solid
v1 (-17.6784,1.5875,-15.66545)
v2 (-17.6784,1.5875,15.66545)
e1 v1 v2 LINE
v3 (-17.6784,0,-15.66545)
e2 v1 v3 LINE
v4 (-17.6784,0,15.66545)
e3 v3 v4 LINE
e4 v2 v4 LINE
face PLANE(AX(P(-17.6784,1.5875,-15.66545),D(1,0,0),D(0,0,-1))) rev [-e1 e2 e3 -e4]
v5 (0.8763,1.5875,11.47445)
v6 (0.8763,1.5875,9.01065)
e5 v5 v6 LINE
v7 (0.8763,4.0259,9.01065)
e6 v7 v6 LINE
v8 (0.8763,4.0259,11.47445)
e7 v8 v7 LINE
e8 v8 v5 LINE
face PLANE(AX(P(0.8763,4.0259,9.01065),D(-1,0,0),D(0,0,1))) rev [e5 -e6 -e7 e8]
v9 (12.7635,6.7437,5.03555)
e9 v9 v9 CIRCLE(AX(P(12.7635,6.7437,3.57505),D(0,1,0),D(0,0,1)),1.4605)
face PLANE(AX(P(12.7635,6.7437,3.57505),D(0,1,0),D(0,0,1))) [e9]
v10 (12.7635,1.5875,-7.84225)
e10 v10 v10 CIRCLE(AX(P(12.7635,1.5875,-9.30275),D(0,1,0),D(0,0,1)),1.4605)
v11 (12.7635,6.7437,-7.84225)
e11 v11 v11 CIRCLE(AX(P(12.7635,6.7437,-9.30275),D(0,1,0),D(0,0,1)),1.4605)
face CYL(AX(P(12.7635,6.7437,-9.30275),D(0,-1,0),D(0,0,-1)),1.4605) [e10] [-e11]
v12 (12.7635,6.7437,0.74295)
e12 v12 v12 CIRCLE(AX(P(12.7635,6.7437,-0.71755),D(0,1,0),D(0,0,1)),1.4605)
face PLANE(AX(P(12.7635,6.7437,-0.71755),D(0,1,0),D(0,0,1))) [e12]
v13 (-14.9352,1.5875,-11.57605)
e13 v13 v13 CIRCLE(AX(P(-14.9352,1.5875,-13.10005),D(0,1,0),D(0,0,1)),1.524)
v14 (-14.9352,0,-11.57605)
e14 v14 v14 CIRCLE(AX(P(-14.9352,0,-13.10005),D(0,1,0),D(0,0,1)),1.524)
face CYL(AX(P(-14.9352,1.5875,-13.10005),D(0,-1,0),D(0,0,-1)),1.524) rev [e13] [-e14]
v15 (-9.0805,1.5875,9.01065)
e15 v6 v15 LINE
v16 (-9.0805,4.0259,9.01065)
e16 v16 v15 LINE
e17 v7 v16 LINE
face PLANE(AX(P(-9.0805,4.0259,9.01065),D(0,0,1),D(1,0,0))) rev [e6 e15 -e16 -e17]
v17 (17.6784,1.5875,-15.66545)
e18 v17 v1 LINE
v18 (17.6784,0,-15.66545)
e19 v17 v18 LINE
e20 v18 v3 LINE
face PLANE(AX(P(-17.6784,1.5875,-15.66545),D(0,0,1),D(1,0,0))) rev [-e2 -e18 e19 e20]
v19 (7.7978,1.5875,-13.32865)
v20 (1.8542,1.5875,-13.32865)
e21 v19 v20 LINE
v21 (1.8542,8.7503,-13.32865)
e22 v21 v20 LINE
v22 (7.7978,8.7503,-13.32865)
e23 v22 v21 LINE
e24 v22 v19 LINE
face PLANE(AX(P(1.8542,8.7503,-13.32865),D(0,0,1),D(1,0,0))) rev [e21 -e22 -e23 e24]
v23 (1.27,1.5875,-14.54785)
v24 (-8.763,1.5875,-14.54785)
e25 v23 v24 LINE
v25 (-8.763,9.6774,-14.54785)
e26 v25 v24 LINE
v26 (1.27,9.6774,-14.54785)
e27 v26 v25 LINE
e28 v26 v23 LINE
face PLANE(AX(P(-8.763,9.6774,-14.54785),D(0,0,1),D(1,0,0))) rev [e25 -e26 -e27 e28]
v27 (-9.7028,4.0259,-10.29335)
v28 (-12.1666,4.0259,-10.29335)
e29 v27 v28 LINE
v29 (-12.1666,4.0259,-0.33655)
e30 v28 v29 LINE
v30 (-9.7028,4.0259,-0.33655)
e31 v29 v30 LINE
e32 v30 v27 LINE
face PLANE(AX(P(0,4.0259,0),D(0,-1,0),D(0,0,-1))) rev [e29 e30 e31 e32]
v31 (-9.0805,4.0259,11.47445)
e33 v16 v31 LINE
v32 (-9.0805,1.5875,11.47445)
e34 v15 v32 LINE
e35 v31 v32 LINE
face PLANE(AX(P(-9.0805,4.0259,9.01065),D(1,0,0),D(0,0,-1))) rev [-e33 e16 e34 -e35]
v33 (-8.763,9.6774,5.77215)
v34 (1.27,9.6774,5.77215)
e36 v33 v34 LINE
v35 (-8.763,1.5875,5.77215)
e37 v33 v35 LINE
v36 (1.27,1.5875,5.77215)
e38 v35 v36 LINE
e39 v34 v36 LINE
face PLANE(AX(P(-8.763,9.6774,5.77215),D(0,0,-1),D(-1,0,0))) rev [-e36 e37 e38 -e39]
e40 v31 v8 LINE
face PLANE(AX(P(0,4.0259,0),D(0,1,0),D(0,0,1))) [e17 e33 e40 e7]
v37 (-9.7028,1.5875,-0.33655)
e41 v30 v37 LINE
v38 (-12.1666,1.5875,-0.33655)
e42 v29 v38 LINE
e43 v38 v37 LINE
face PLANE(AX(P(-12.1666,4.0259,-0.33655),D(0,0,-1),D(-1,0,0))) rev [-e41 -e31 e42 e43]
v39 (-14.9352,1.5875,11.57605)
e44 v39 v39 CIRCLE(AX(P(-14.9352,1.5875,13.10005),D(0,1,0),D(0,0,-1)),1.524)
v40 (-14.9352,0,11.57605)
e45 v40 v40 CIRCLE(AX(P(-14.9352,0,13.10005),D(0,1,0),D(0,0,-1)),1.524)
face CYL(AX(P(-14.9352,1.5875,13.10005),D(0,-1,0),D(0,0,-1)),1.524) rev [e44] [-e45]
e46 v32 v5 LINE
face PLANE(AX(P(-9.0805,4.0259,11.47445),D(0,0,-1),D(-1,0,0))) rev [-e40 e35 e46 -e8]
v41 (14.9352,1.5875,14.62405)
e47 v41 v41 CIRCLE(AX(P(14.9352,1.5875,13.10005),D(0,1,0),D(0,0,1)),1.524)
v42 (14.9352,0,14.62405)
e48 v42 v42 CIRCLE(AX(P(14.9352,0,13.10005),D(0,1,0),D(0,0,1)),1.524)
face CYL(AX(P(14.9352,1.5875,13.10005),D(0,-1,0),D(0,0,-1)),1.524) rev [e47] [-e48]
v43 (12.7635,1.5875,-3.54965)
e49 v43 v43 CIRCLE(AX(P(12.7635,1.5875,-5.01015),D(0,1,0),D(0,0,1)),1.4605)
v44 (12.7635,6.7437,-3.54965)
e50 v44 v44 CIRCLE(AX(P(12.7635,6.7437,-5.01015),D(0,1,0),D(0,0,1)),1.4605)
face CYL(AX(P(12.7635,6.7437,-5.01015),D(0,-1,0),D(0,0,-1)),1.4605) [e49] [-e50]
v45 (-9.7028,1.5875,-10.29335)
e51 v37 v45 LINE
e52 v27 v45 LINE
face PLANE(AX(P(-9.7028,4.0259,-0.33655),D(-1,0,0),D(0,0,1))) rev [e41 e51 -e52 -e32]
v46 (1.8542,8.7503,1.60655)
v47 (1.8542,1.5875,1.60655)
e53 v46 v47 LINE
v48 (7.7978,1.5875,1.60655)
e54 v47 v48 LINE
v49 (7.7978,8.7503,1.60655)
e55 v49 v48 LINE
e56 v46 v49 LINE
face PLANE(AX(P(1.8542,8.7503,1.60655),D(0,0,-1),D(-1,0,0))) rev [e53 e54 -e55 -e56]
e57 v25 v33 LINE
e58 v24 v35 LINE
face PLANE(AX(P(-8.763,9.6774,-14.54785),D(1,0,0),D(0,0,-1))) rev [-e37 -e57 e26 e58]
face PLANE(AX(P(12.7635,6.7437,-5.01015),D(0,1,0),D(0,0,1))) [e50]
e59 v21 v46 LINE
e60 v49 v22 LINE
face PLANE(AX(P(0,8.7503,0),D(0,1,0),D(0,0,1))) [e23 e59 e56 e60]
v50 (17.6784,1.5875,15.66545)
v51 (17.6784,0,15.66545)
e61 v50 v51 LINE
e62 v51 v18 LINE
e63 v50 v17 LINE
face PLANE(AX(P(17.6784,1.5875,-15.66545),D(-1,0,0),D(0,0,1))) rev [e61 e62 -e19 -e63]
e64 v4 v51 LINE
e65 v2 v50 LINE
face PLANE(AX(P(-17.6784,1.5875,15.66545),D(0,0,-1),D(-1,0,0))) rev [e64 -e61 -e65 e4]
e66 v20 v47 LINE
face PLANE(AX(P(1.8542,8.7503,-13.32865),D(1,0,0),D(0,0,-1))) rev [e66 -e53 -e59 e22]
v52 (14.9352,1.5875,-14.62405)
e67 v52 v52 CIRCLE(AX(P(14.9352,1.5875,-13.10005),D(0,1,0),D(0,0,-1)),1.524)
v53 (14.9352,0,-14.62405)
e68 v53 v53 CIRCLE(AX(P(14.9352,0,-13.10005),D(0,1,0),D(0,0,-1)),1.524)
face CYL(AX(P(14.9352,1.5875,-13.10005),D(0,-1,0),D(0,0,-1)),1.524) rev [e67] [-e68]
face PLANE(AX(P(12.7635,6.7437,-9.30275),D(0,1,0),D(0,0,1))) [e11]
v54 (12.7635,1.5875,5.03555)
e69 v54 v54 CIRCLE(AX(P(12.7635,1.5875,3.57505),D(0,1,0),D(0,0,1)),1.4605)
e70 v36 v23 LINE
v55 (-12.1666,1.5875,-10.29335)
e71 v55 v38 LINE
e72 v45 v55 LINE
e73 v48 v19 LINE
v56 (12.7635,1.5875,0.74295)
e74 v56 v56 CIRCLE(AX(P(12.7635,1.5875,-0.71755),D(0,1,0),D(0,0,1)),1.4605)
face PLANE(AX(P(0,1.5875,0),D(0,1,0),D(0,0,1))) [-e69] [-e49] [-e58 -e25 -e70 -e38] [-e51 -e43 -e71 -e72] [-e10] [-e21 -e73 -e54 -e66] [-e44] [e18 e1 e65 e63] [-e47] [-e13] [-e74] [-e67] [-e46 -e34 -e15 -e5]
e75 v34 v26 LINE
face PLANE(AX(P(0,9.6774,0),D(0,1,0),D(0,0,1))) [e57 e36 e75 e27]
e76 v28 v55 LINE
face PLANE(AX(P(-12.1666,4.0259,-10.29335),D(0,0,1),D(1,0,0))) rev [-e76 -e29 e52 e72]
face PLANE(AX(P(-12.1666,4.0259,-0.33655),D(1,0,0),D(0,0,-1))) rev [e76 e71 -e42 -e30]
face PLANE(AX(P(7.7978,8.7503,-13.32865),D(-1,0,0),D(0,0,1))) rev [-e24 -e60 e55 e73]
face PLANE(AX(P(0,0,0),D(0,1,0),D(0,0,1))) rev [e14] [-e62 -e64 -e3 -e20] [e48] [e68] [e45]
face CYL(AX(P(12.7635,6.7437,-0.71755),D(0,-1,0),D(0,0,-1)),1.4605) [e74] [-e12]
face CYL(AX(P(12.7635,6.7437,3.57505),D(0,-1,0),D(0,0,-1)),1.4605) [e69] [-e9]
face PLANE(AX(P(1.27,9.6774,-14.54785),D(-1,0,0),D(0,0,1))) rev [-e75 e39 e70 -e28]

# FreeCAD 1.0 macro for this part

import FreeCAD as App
import Part
import Sketcher
from FreeCAD import Vector
Q = App.Units.Quantity

doc = App.newDocument("Part")
body = doc.addObject("PartDesign::Body", "Body")

sketch1 = doc.addObject("Sketcher::SketchObject", "Sketch")
body.addObject(sketch1)
sketch1.AttachmentSupport = (doc.XZ_Plane, [""])
sketch1.MapMode = "FlatFace"
sketch1.addGeometry([
    Part.LineSegment(Vector(-17.7, -15.7, 0), Vector(-17.7, 15.7, 0)),
    Part.LineSegment(Vector(-17.7, 15.7, 0), Vector(17.7, 15.7, 0)),
    Part.LineSegment(Vector(17.7, 15.7, 0), Vector(17.7, -15.7, 0)),
    Part.LineSegment(Vector(17.7, -15.7, 0), Vector(-17.7, -15.7, 0)),
    Part.Circle(Vector(-14.9, 13.1, 0), Vector(0, 0, 1), 1.5),
    Part.Circle(Vector(14.9, 13.1, 0), Vector(0, 0, 1), 1.5),
    Part.Circle(Vector(-14.9, -13.1, 0), Vector(0, 0, 1), 1.5),
    Part.Circle(Vector(14.9, -13.1, 0), Vector(0, 0, 1), 1.5),
], False)
sketch1.addConstraint([
    Sketcher.Constraint("Coincident", 0, 2, 1, 1),
    Sketcher.Constraint("Coincident", 1, 2, 2, 1),
    Sketcher.Constraint("Coincident", 2, 2, 3, 1),
    Sketcher.Constraint("Coincident", 3, 2, 0, 1),
    Sketcher.Constraint("Vertical", 0),
    Sketcher.Constraint("Horizontal", 1),
    Sketcher.Constraint("Vertical", 2),
    Sketcher.Constraint("Horizontal", 3),
    Sketcher.Constraint("Equal", 4, 5),
    Sketcher.Constraint("Equal", 5, 6),
    Sketcher.Constraint("Equal", 6, 7),
    Sketcher.Constraint("Symmetric", 5, 3, 6, 3, -1, 1),
    Sketcher.Constraint("Symmetric", 4, 3, 7, 3, -1, 1),
    Sketcher.Constraint("Symmetric", 0, 2, 2, 2, -1, 1),
    Sketcher.Constraint("Symmetric", 4, 3, 5, 3, -2),
    Sketcher.Constraint("Diameter", 4, Q("0.12 in")),
    Sketcher.Constraint("DistanceX", 1, 1, 1, 2, Q("1.392 in")),
    Sketcher.Constraint("DistanceY", 0, 1, 0, 2, Q("1.2335 in")),
    Sketcher.Constraint("DistanceX", 4, 3, -1, 1, Q("0.588 in")),
    Sketcher.Constraint("DistanceY", 4, 3, 0, 2, Q("0.101 in")),
])
pad1 = doc.addObject("PartDesign::Pad", "Pad")
body.addObject(pad1)
pad1.Profile = sketch1
pad1.Length = Q("0.0625 in")
pad1.Reversed = True

sketch2 = doc.addObject("Sketcher::SketchObject", "Sketch001")
body.addObject(sketch2)
sketch2.AttachmentSupport = (doc.XZ_Plane, [""])
sketch2.MapMode = "FlatFace"
sketch2.AttachmentOffset = App.Placement(Vector(0, 0, -0.0625 * 25.4), App.Rotation())
sketch2.addGeometry([
    Part.LineSegment(Vector(-12.2, -10.3, 0), Vector(-12.2, -0.3, 0)),
    Part.LineSegment(Vector(-12.2, -0.3, 0), Vector(-9.7, -0.3, 0)),
    Part.LineSegment(Vector(-9.7, -0.3, 0), Vector(-9.7, -10.3, 0)),
    Part.LineSegment(Vector(-9.7, -10.3, 0), Vector(-12.2, -10.3, 0)),
    Part.LineSegment(Vector(-9.1, 9, 0), Vector(-9.1, 11.5, 0)),
    Part.LineSegment(Vector(-9.1, 11.5, 0), Vector(0.9, 11.5, 0)),
    Part.LineSegment(Vector(0.9, 11.5, 0), Vector(0.9, 9, 0)),
    Part.LineSegment(Vector(0.9, 9, 0), Vector(-9.1, 9, 0)),
], False)
sketch2.addConstraint([
    Sketcher.Constraint("Coincident", 0, 2, 1, 1),
    Sketcher.Constraint("Coincident", 1, 2, 2, 1),
    Sketcher.Constraint("Coincident", 2, 2, 3, 1),
    Sketcher.Constraint("Coincident", 3, 2, 0, 1),
    Sketcher.Constraint("Coincident", 4, 2, 5, 1),
    Sketcher.Constraint("Coincident", 5, 2, 6, 1),
    Sketcher.Constraint("Coincident", 6, 2, 7, 1),
    Sketcher.Constraint("Coincident", 7, 2, 4, 1),
    Sketcher.Constraint("Vertical", 0),
    Sketcher.Constraint("Horizontal", 1),
    Sketcher.Constraint("Vertical", 2),
    Sketcher.Constraint("Horizontal", 3),
    Sketcher.Constraint("Vertical", 4),
    Sketcher.Constraint("Horizontal", 5),
    Sketcher.Constraint("Vertical", 6),
    Sketcher.Constraint("Horizontal", 7),
    Sketcher.Constraint("Equal", 7, 0),
    Sketcher.Constraint("Equal", 3, 4),
    Sketcher.Constraint("DistanceX", 1, 1, 1, 2, Q("0.097 in")),
    Sketcher.Constraint("DistanceX", 5, 1, 5, 2, Q("0.392 in")),
    Sketcher.Constraint("DistanceY", 2, 2, 6, 2, Q("0.76 in")),
    Sketcher.Constraint("DistanceX", 0, 2, -1, 1, Q("0.479 in")),
    Sketcher.Constraint("DistanceX", 4, 2, -1, 1, Q("0.3575 in")),
    Sketcher.Constraint("DistanceY", 0, 2, -1, 1, Q("0.33655 mm")),
])
pad2 = doc.addObject("PartDesign::Pad", "Pad001")
body.addObject(pad2)
pad2.Profile = sketch2
pad2.Length = Q("0.096 in")
pad2.Reversed = True

sketch3 = doc.addObject("Sketcher::SketchObject", "Sketch002")
body.addObject(sketch3)
sketch3.AttachmentSupport = (doc.XZ_Plane, [""])
sketch3.MapMode = "FlatFace"
sketch3.AttachmentOffset = App.Placement(Vector(0, 0, -0.0625 * 25.4), App.Rotation())
sketch3.addGeometry([
    Part.LineSegment(Vector(-9, -15, 0), Vector(-9, 6, 0)),
    Part.LineSegment(Vector(-9, 6, 0), Vector(1, 6, 0)),
    Part.LineSegment(Vector(1, 6, 0), Vector(1, -15, 0)),
    Part.LineSegment(Vector(1, -15, 0), Vector(-9, -15, 0)),
], False)
sketch3.addConstraint([
    Sketcher.Constraint("Coincident", 0, 2, 1, 1),
    Sketcher.Constraint("Coincident", 1, 2, 2, 1),
    Sketcher.Constraint("Coincident", 2, 2, 3, 1),
    Sketcher.Constraint("Coincident", 3, 2, 0, 1),
    Sketcher.Constraint("Vertical", 0),
    Sketcher.Constraint("Horizontal", 1),
    Sketcher.Constraint("Vertical", 2),
    Sketcher.Constraint("Horizontal", 3),
    Sketcher.Constraint("DistanceY", 0, 1, 0, 2, Q("0.8 in")),
    Sketcher.Constraint("DistanceX", 1, 1, 1, 2, Q("0.395 in")),
    Sketcher.Constraint("DistanceX", -1, 1, 1, 2, Q("0.05 in")),
    Sketcher.Constraint("DistanceY", -1, 1, 0, 2, Q("5.77215 mm")),
])
pad3 = doc.addObject("PartDesign::Pad", "Pad002")
body.addObject(pad3)
pad3.Profile = sketch3
pad3.Length = Q("0.3185 in")
pad3.Reversed = True

sketch4 = doc.addObject("Sketcher::SketchObject", "Sketch003")
body.addObject(sketch4)
sketch4.AttachmentSupport = (doc.XZ_Plane, [""])
sketch4.MapMode = "FlatFace"
sketch4.AttachmentOffset = App.Placement(Vector(0, 0, -0.0625 * 25.4), App.Rotation())
sketch4.addGeometry([
    Part.LineSegment(Vector(2, -13, 0), Vector(2, 2, 0)),
    Part.LineSegment(Vector(2, 2, 0), Vector(8, 2, 0)),
    Part.LineSegment(Vector(8, 2, 0), Vector(8, -13, 0)),
    Part.LineSegment(Vector(8, -13, 0), Vector(2, -13, 0)),
], False)
sketch4.addConstraint([
    Sketcher.Constraint("Coincident", 0, 2, 1, 1),
    Sketcher.Constraint("Coincident", 1, 2, 2, 1),
    Sketcher.Constraint("Coincident", 2, 2, 3, 1),
    Sketcher.Constraint("Coincident", 3, 2, 0, 1),
    Sketcher.Constraint("Vertical", 0),
    Sketcher.Constraint("Horizontal", 1),
    Sketcher.Constraint("Vertical", 2),
    Sketcher.Constraint("Horizontal", 3),
    Sketcher.Constraint("DistanceX", 1, 1, 1, 2, Q("0.234 in")),
    Sketcher.Constraint("DistanceY", 0, 1, 0, 2, Q("0.588 in")),
    Sketcher.Constraint("DistanceX", -1, 1, 0, 2, Q("0.073 in")),
    Sketcher.Constraint("DistanceY", -1, 1, 0, 2, Q("1.60655 mm")),
])
pad4 = doc.addObject("PartDesign::Pad", "Pad003")
body.addObject(pad4)
pad4.Profile = sketch4
pad4.Length = Q("0.282 in")
pad4.Reversed = True

sketch5 = doc.addObject("Sketcher::SketchObject", "Sketch004")
body.addObject(sketch5)
sketch5.AttachmentSupport = (doc.XZ_Plane, [""])
sketch5.MapMode = "FlatFace"
sketch5.AttachmentOffset = App.Placement(Vector(0, 0, -0.0625 * 25.4), App.Rotation())
sketch5.addGeometry([
    Part.Circle(Vector(12.8, -9.3, 0), Vector(0, 0, 1), 1.5),
    Part.Circle(Vector(12.8, -5, 0), Vector(0, 0, 1), 1.5),
    Part.Circle(Vector(12.8, -0.7, 0), Vector(0, 0, 1), 1.5),
    Part.Circle(Vector(12.8, 3.6, 0), Vector(0, 0, 1), 1.5),
], False)
sketch5.addConstraint([
    Sketcher.Constraint("Equal", 0, 1),
    Sketcher.Constraint("Equal", 1, 2),
    Sketcher.Constraint("Equal", 2, 3),
    Sketcher.Constraint("Vertical", 0, 3, 1, 3),
    Sketcher.Constraint("Vertical", 1, 3, 2, 3),
    Sketcher.Constraint("Vertical", 2, 3, 3, 3),
    Sketcher.Constraint("Diameter", 0, Q("0.115 in")),
    Sketcher.Constraint("DistanceY", 0, 3, 1, 3, Q("0.169 in")),
    Sketcher.Constraint("DistanceY", 1, 3, 2, 3, Q("0.169 in")),
    Sketcher.Constraint("DistanceY", 2, 3, 3, 3, Q("0.169 in")),
    Sketcher.Constraint("DistanceX", -1, 1, 0, 3, Q("0.5025 in")),
    Sketcher.Constraint("DistanceY", 0, 3, -1, 1, Q("9.30275 mm")),
])
pad5 = doc.addObject("PartDesign::Pad", "Pad004")
body.addObject(pad5)
pad5.Profile = sketch5
pad5.Length = Q("0.203 in")
pad5.Reversed = True

doc.recompute()
